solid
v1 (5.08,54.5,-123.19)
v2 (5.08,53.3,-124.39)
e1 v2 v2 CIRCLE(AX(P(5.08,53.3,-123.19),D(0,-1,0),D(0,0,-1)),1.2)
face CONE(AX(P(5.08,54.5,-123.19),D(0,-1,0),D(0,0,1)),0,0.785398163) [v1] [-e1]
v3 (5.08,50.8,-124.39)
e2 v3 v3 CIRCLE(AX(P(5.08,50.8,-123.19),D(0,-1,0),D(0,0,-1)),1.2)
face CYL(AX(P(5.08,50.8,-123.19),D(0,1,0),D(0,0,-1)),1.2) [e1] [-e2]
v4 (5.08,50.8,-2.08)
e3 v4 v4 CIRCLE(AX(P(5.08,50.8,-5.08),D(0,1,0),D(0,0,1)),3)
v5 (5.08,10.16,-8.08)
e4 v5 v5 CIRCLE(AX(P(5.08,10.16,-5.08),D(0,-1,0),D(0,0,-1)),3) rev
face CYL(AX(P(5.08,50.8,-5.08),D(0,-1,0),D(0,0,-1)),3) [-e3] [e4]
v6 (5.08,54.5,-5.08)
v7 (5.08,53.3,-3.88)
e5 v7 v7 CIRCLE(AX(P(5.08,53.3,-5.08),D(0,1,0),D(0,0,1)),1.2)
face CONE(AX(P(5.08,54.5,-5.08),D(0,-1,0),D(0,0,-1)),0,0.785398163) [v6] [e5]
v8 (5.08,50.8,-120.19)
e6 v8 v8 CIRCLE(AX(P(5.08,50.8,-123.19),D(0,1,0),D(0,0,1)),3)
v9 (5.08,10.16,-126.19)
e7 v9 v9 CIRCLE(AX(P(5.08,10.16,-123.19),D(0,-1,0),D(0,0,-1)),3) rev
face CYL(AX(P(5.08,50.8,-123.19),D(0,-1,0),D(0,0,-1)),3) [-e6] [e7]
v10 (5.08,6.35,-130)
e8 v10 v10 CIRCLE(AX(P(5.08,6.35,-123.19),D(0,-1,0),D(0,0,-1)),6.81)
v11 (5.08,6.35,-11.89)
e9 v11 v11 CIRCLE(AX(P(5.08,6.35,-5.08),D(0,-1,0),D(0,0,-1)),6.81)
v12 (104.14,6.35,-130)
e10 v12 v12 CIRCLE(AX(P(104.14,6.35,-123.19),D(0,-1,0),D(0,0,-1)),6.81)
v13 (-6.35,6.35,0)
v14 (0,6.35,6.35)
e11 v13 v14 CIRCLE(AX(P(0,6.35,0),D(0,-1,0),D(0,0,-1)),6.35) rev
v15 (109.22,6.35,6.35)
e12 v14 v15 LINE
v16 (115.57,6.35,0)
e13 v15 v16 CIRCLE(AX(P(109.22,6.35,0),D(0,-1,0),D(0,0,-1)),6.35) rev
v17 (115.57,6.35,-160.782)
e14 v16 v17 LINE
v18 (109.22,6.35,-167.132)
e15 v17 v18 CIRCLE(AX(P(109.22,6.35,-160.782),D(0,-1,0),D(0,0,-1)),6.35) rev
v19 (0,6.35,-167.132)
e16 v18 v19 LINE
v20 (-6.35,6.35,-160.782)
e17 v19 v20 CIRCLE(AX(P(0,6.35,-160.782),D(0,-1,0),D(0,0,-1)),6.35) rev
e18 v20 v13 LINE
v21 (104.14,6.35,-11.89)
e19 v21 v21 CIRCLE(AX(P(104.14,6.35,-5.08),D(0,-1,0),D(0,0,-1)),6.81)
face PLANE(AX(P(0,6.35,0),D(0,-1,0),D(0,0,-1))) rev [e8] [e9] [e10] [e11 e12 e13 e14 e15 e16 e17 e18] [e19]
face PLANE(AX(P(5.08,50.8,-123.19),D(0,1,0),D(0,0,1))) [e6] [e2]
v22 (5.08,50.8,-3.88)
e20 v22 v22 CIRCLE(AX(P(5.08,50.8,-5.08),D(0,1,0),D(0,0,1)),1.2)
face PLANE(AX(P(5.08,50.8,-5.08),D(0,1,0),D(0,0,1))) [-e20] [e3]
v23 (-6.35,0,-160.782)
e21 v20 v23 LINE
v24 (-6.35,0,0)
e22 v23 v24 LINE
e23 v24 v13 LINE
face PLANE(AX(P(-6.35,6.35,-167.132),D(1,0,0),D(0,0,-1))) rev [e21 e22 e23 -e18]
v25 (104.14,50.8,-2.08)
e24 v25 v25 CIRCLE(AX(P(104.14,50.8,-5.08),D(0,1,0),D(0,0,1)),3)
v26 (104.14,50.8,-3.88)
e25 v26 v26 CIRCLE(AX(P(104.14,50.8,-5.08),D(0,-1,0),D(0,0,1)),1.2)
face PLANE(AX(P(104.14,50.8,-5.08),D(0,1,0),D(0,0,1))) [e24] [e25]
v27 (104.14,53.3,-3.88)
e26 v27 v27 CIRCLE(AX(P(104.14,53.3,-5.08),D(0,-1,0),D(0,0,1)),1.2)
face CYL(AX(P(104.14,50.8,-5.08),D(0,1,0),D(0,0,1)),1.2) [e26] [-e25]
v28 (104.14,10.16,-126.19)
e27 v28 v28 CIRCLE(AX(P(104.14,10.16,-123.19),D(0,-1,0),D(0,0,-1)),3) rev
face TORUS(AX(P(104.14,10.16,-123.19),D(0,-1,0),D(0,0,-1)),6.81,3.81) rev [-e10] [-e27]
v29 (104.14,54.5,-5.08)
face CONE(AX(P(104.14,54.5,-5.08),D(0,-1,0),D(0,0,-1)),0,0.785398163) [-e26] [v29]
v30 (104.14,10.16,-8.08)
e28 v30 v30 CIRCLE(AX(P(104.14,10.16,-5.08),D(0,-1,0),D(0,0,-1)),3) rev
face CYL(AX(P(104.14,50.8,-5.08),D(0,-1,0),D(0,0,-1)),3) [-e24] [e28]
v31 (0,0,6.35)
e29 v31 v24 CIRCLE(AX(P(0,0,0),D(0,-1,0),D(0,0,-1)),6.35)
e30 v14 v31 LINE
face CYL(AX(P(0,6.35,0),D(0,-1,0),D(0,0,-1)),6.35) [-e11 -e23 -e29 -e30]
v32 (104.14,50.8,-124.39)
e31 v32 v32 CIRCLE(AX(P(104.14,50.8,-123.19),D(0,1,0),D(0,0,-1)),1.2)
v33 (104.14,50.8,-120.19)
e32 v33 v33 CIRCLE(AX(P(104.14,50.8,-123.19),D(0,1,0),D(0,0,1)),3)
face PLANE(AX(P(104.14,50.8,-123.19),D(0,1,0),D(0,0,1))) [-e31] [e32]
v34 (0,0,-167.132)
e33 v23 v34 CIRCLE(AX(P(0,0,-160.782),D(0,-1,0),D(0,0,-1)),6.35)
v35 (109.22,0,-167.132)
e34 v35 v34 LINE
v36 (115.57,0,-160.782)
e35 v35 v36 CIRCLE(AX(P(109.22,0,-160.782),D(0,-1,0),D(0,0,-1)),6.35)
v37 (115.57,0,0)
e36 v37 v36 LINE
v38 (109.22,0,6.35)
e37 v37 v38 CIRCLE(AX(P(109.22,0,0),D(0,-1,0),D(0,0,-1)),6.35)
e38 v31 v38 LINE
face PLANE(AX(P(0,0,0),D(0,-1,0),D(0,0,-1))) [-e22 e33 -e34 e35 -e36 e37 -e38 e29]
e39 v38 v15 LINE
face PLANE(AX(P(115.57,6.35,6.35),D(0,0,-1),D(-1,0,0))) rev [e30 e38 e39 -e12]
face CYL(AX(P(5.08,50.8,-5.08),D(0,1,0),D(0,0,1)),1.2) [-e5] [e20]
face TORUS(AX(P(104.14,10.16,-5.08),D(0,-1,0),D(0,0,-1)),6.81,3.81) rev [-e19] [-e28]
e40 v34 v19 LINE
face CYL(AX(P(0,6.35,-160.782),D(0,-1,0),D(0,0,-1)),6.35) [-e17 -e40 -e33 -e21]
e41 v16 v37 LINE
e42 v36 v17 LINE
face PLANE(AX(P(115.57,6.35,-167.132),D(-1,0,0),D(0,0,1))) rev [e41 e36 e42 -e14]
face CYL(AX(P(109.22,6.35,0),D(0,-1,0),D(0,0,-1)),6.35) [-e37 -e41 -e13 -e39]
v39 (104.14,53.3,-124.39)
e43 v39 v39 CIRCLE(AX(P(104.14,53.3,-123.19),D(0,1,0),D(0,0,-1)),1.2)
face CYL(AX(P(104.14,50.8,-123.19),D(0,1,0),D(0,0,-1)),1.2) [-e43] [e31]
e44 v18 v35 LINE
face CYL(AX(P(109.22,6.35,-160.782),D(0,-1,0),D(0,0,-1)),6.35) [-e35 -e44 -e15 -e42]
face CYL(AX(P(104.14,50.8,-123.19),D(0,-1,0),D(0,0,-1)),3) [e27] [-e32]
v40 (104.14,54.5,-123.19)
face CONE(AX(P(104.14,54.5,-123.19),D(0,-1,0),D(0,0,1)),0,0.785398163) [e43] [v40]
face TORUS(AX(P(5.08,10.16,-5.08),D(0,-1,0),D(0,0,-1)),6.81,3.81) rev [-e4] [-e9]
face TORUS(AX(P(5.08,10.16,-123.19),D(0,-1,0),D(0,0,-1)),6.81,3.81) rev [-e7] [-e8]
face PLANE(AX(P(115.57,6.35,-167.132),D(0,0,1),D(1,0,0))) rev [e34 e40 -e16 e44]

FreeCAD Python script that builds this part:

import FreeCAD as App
import Part
import Sketcher
from FreeCAD import Vector
Q = App.Units.Quantity


def edges_at(feature, points):
    """Names of the edges that pass closest to the given points."""
    edges = feature.Shape.Edges
    near = lambda p: min(range(len(edges)), key=lambda i: edges[i].distToShape(Part.Vertex(*p))[0])
    return sorted({f"Edge{near(p) + 1}" for p in points})

doc = App.newDocument("Part")
body = doc.addObject("PartDesign::Body", "Body")

# Sketch on XZ plane
sketch1 = body.newObject("Sketcher::SketchObject", "Sketch")
sketch1.AttachmentSupport = (doc.getObject("XZ_Plane"), [""])
sketch1.MapMode = "FlatFace"
sketch1.addGeometry(Part.LineSegment(Vector(-6, -167, 0), Vector(-6, 6, 0)), False)
sketch1.addGeometry(Part.LineSegment(Vector(-6, 6, 0), Vector(116, 6, 0)), False)
sketch1.addGeometry(Part.LineSegment(Vector(116, 6, 0), Vector(116, -167, 0)), False)
sketch1.addGeometry(Part.LineSegment(Vector(116, -167, 0), Vector(-6, -167, 0)), False)
sketch1.addConstraint(Sketcher.Constraint("Coincident", 0, 2, 1, 1))
sketch1.addConstraint(Sketcher.Constraint("Coincident", 1, 2, 2, 1))
sketch1.addConstraint(Sketcher.Constraint("Coincident", 2, 2, 3, 1))
sketch1.addConstraint(Sketcher.Constraint("Coincident", 3, 2, 0, 1))
sketch1.addConstraint(Sketcher.Constraint("Vertical", 0))
sketch1.addConstraint(Sketcher.Constraint("Horizontal", 1))
sketch1.addConstraint(Sketcher.Constraint("Vertical", 2))
sketch1.addConstraint(Sketcher.Constraint("Horizontal", 3))
sketch1.addConstraint(Sketcher.Constraint("DistanceX", 1, 1, 1, 2, Q("4.8 in")))
sketch1.addConstraint(Sketcher.Constraint("DistanceY", 0, 1, 0, 2, Q("6.83 in")))
sketch1.addConstraint(Sketcher.Constraint("DistanceX", 0, 2, -1, 1, Q("0.25 in")))
sketch1.addConstraint(Sketcher.Constraint("DistanceY", -1, 1, 0, 2, Q("0.25 in")))
pad1 = body.newObject("PartDesign::Pad", "Pad")
pad1.Profile = sketch1
pad1.Length = Q("0.25 in")
pad1.Reversed = True

# Sketch on XZ plane
sketch2 = body.newObject("Sketcher::SketchObject", "Sketch001")
sketch2.AttachmentSupport = (doc.getObject("XZ_Plane"), [""])
sketch2.MapMode = "FlatFace"
sketch2.AttachmentOffset = App.Placement(Vector(0, 0, -0.25 * 25.4), App.Rotation())
sketch2.addGeometry(Part.Circle(Vector(104.1, -5.1, 0), Vector(0, 0, 1), 3), False)
sketch2.addGeometry(Part.Circle(Vector(104.1, -123.2, 0), Vector(0, 0, 1), 3), False)
sketch2.addGeometry(Part.Circle(Vector(5.1, -123.2, 0), Vector(0, 0, 1), 3), False)
sketch2.addGeometry(Part.Circle(Vector(5.1, -5.1, 0), Vector(0, 0, 1), 3), False)
sketch2.addConstraint(Sketcher.Constraint("Equal", 0, 1))
sketch2.addConstraint(Sketcher.Constraint("Equal", 1, 2))
sketch2.addConstraint(Sketcher.Constraint("Equal", 2, 3))
sketch2.addConstraint(Sketcher.Constraint("Horizontal", 1, 3, 2, 3))
sketch2.addConstraint(Sketcher.Constraint("Horizontal", 0, 3, 3, 3))
sketch2.addConstraint(Sketcher.Constraint("Vertical", 0, 3, 1, 3))
sketch2.addConstraint(Sketcher.Constraint("Vertical", 2, 3, 3, 3))
sketch2.addConstraint(Sketcher.Constraint("DistanceX", -1, 1, 0, 3, Q("4.1 in")))
sketch2.addConstraint(Sketcher.Constraint("DistanceY", 0, 3, -1, 1, Q("0.2 in")))
sketch2.addConstraint(Sketcher.Constraint("DistanceX", -1, 1, 2, 3, Q("0.2 in")))
sketch2.addConstraint(Sketcher.Constraint("Diameter", 0, Q("6 mm")))
sketch2.addConstraint(Sketcher.Constraint("DistanceY", 1, 3, -1, 1, Q("4.85 in")))
pad2 = body.newObject("PartDesign::Pad", "Pad001")
pad2.Profile = sketch2
pad2.Length = Q("1.75 in")
pad2.Reversed = True
doc.recompute()

fillet = body.newObject("PartDesign::Fillet", "Fillet")
fillet.Base = (pad2, edges_at(pad2, [
    (-6.35, 3.175, -167.132),
    (115.57, 3.175, -167.132),
    (115.57, 3.175, 6.35),
    (-6.35, 3.175, 6.35),
]))
fillet.Radius = Q("0.25 in")
doc.recompute()

fillet2 = body.newObject("PartDesign::Fillet", "Fillet001")
fillet2.Base = (fillet, edges_at(fillet, [
    (101.14, 6.35, -5.08),
    (101.14, 6.35, -123.19),
    (2.08, 6.35, -123.19),
    (2.08, 6.35, -5.08),
]))
fillet2.Radius = Q("0.15 in")

# Sketch on XY plane
sketch3 = body.newObject("Sketcher::SketchObject", "Sketch002")
sketch3.AttachmentSupport = (doc.getObject("XY_Plane"), [""])
sketch3.MapMode = "FlatFace"
sketch3.AttachmentOffset = App.Placement(Vector(0, 0, -0.2 * 25.4), App.Rotation())
sketch3.addGeometry(Part.LineSegment(Vector(3.9, 50.8, 0), Vector(5.1, 50.8, 0)), False)
sketch3.addGeometry(Part.LineSegment(Vector(5.1, 50.8, 0), Vector(5.1, 54.5, 0)), False)
sketch3.addGeometry(Part.LineSegment(Vector(5.1, 54.5, 0), Vector(3.9, 53.3, 0)), False)
sketch3.addGeometry(Part.LineSegment(Vector(3.9, 53.3, 0), Vector(3.9, 50.8, 0)), False)
sketch3.addGeometry(Part.LineSegment(Vector(5.1, 54.5, 0), Vector(5.1, 50.8, 0)), True)  # axis
sketch3.addConstraint(Sketcher.Constraint("Coincident", 0, 2, 1, 1))
sketch3.addConstraint(Sketcher.Constraint("Coincident", 1, 2, 2, 1))
sketch3.addConstraint(Sketcher.Constraint("Coincident", 2, 2, 3, 1))
sketch3.addConstraint(Sketcher.Constraint("Coincident", 3, 2, 0, 1))
sketch3.addConstraint(Sketcher.Constraint("Horizontal", 0))
sketch3.addConstraint(Sketcher.Constraint("Vertical", 1))
sketch3.addConstraint(Sketcher.Constraint("Vertical", 3))
sketch3.addConstraint(Sketcher.Constraint("Vertical", 4))
sketch3.addConstraint(Sketcher.Constraint("Coincident", 4, 1, 1, 2))
sketch3.addConstraint(Sketcher.Constraint("Horizontal", 3, 2, 4, 2))
sketch3.addConstraint(Sketcher.Constraint("DistanceY", -1, 1, 0, 2, Q("2 in")))
sketch3.addConstraint(Sketcher.Constraint("Angle", 2, Q("-135 deg")))
sketch3.addConstraint(Sketcher.Constraint("DistanceX", -1, 1, 0, 2, Q("0.2 in")))
sketch3.addConstraint(Sketcher.Constraint("DistanceX", 0, 1, 0, 2, Q("1.2 mm")))
sketch3.addConstraint(Sketcher.Constraint("DistanceY", 1, 1, 1, 2, Q("3.7 mm")))
revolution = body.newObject("PartDesign::Revolution", "Revolution")
revolution.Profile = sketch3
revolution.ReferenceAxis = (sketch3, ["Axis0"])
revolution.Angle = 360
doc.recompute()

datumplane = body.newObject("PartDesign::Plane", "DatumPlane")
datumplane.AttachmentSupport = (doc.getObject("XY_Plane"), [""])
datumplane.MapMode = "FlatFace"
datumplane.AttachmentOffset = App.Placement(Vector(0, 0, -2.525 * 25.4), App.Rotation())
mirrored = body.newObject("PartDesign::Mirrored", "Mirrored")
mirrored.Originals = [revolution]
mirrored.MirrorPlane = (datumplane, [""])
body.Tip = mirrored
doc.recompute()

datumplane2 = body.newObject("PartDesign::Plane", "DatumPlane001")
datumplane2.AttachmentSupport = (doc.getObject("YZ_Plane"), [""])
datumplane2.MapMode = "FlatFace"
datumplane2.AttachmentOffset = App.Placement(Vector(0, 0, 2.15 * 25.4), App.Rotation())
mirrored2 = body.newObject("PartDesign::Mirrored", "Mirrored001")
mirrored2.Originals = [revolution]
mirrored2.MirrorPlane = (datumplane2, [""])
body.Tip = mirrored2

# Sketch on XY plane
sketch4 = body.newObject("Sketcher::SketchObject", "Sketch003")
sketch4.AttachmentSupport = (doc.getObject("XY_Plane"), [""])
sketch4.MapMode = "FlatFace"
sketch4.AttachmentOffset = App.Placement(Vector(0, 0, -4.85 * 25.4), App.Rotation())
sketch4.addGeometry(Part.LineSegment(Vector(105.3, 50.8, 0), Vector(104.1, 50.8, 0)), False)
sketch4.addGeometry(Part.LineSegment(Vector(104.1, 50.8, 0), Vector(104.1, 54.5, 0)), False)
sketch4.addGeometry(Part.LineSegment(Vector(104.1, 54.5, 0), Vector(105.3, 53.3, 0)), False)
sketch4.addGeometry(Part.LineSegment(Vector(105.3, 53.3, 0), Vector(105.3, 50.8, 0)), False)
sketch4.addGeometry(Part.LineSegment(Vector(104.1, 54.5, 0), Vector(104.1, 50.8, 0)), True)  # axis
sketch4.addConstraint(Sketcher.Constraint("Coincident", 0, 2, 1, 1))
sketch4.addConstraint(Sketcher.Constraint("Coincident", 1, 2, 2, 1))
sketch4.addConstraint(Sketcher.Constraint("Coincident", 2, 2, 3, 1))
sketch4.addConstraint(Sketcher.Constraint("Coincident", 3, 2, 0, 1))
sketch4.addConstraint(Sketcher.Constraint("Horizontal", 0))
sketch4.addConstraint(Sketcher.Constraint("Vertical", 1))
sketch4.addConstraint(Sketcher.Constraint("Vertical", 3))
sketch4.addConstraint(Sketcher.Constraint("Vertical", 4))
sketch4.addConstraint(Sketcher.Constraint("Coincident", 4, 1, 1, 2))
sketch4.addConstraint(Sketcher.Constraint("Horizontal", 3, 2, 4, 2))
sketch4.addConstraint(Sketcher.Constraint("DistanceY", -1, 1, 0, 2, Q("2 in")))
sketch4.addConstraint(Sketcher.Constraint("Angle", 2, Q("-45 deg")))
sketch4.addConstraint(Sketcher.Constraint("DistanceX", -1, 1, 0, 2, Q("4.1 in")))
sketch4.addConstraint(Sketcher.Constraint("DistanceX", 0, 2, 0, 1, Q("1.2 mm")))
sketch4.addConstraint(Sketcher.Constraint("DistanceY", 1, 1, 1, 2, Q("3.7 mm")))
revolution2 = body.newObject("PartDesign::Revolution", "Revolution001")
revolution2.Profile = sketch4
revolution2.ReferenceAxis = (sketch4, ["Axis0"])
revolution2.Angle = 360

doc.recompute()
